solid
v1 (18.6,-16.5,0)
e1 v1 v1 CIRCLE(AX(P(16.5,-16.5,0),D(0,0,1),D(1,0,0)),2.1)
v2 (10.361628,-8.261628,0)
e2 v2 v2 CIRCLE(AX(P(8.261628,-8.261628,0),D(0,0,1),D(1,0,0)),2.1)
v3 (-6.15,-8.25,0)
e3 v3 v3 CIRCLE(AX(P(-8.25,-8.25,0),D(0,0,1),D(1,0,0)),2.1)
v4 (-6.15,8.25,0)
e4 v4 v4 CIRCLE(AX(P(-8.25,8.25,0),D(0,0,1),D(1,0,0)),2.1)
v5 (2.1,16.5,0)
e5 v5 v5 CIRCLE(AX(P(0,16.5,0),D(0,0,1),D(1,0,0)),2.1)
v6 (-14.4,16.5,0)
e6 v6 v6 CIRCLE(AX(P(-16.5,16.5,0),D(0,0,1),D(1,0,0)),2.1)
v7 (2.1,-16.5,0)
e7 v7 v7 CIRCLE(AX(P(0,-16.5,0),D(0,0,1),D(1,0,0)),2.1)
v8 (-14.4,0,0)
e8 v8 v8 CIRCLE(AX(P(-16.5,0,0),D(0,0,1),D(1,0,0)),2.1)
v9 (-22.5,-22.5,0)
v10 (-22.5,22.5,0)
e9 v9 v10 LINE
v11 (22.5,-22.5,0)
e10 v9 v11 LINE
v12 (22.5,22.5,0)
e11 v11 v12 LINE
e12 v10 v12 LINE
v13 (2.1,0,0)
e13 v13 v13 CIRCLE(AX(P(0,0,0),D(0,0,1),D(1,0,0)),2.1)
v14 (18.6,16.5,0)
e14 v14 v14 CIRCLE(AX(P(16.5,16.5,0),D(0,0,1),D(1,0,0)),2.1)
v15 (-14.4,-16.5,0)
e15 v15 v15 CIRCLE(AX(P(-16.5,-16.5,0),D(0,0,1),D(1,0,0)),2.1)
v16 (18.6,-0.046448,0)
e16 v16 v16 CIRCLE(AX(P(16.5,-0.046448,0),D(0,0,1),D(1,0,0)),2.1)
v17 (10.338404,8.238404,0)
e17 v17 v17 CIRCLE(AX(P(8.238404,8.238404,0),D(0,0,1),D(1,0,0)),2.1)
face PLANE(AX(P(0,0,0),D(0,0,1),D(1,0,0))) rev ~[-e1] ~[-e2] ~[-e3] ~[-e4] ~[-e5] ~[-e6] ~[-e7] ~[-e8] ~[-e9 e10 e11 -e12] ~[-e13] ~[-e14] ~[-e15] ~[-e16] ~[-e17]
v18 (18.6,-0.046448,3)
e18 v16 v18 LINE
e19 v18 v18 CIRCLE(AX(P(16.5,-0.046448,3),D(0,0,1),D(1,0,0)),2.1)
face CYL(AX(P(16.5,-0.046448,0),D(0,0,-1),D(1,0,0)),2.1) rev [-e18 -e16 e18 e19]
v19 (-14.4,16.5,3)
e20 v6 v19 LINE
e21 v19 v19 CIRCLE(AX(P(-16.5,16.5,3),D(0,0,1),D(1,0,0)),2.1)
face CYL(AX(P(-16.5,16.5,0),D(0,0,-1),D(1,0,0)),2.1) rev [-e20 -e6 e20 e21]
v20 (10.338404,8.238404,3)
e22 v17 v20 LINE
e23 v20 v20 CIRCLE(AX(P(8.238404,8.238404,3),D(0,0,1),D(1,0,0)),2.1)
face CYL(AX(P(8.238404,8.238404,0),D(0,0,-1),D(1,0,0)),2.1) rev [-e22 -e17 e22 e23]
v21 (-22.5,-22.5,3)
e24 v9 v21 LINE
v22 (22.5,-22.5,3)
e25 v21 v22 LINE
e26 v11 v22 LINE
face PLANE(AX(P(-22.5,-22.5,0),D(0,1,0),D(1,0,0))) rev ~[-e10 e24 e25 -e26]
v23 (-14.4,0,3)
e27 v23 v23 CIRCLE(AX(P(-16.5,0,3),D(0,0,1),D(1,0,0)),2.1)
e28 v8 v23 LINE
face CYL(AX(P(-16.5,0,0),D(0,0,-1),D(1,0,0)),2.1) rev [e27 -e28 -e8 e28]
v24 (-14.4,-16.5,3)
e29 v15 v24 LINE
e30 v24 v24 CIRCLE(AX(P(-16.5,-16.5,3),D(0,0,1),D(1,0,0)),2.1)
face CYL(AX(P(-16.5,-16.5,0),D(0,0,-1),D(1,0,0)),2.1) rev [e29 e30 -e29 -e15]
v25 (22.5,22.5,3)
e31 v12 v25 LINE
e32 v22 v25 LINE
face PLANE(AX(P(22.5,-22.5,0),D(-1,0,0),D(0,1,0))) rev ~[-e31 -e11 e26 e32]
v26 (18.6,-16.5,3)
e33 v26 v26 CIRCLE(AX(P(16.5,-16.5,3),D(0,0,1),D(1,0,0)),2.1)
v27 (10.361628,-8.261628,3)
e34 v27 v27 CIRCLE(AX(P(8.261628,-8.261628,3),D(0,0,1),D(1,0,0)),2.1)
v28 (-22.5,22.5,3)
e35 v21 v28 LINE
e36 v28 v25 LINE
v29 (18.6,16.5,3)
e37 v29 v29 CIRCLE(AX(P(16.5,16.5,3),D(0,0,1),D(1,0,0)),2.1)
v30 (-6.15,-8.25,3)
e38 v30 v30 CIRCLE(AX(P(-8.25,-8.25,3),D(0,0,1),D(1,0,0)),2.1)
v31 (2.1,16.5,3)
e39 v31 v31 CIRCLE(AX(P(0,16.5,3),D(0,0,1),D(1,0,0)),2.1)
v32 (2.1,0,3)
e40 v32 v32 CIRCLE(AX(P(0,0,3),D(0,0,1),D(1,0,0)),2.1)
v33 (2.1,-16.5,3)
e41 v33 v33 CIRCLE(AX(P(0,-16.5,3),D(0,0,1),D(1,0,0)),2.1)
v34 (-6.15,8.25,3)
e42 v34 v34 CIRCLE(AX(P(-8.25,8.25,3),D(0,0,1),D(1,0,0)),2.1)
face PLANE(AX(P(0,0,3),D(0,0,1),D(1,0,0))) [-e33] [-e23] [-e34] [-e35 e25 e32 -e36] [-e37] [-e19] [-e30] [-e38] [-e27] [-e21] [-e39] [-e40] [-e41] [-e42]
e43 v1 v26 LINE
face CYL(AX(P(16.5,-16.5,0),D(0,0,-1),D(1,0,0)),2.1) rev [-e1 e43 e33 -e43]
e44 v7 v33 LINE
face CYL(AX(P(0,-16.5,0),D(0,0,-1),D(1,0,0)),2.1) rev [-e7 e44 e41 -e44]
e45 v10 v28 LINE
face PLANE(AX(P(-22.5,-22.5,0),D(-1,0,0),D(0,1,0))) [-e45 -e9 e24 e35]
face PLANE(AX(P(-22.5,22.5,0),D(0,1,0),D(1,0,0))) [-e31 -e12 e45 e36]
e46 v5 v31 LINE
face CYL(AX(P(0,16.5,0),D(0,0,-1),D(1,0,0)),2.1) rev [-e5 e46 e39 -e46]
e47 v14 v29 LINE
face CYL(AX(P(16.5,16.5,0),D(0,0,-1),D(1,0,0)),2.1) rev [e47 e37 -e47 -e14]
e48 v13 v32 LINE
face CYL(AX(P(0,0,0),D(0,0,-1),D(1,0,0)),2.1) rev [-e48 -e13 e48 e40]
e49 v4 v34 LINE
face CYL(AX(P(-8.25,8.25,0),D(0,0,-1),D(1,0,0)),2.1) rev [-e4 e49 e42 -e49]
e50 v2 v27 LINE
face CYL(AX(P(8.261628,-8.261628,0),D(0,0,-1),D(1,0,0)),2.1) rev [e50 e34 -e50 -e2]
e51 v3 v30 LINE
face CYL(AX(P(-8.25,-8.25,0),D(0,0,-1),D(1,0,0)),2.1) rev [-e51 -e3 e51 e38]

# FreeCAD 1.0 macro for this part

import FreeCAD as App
import Part
import Sketcher
from FreeCAD import Vector
Q = App.Units.Quantity

doc = App.newDocument("Part")
params = doc.addObject("Spreadsheet::Sheet", "Params")
for row, (alias, value) in enumerate([
    ("sketch1_diameter", "4.2 mm"),
    ("sketch1_width", "45 mm"),
    ("pad1_length", "3 mm"),
], start=1):
    params.set(f"A{row}", alias)
    params.set(f"B{row}", "=" + value)
    params.setAlias(f"B{row}", alias)

body = doc.addObject("PartDesign::Body", "Body")

# Sketch on XY plane
sketch1 = body.newObject("Sketcher::SketchObject", "Sketch")
sketch1.AttachmentSupport = (doc.getObject("XY_Plane"), [""])
sketch1.MapMode = "FlatFace"
sketch1.addGeometry([
    Part.LineSegment(Vector(-22.5, 22.5, 0), Vector(-22.5, -22.5, 0)),  # 0
    Part.LineSegment(Vector(-22.5, -22.5, 0), Vector(22.5, -22.5, 0)),  # 1
    Part.LineSegment(Vector(22.5, -22.5, 0), Vector(22.5, 22.5, 0)),  # 2
    Part.LineSegment(Vector(22.5, 22.5, 0), Vector(-22.5, 22.5, 0)),  # 3
    Part.Circle(Vector(-16.5, -16.5, 0), Vector(0, 0, 1), 2.1),  # 4
    Part.Circle(Vector(-8.2, -8.2, 0), Vector(0, 0, 1), 2.1),  # 5
    Part.Circle(Vector(0, -16.5, 0), Vector(0, 0, 1), 2.1),  # 6
    Part.Circle(Vector(16.5, -16.5, 0), Vector(0, 0, 1), 2.1),  # 7
    Part.Circle(Vector(8.3, -8.3, 0), Vector(0, 0, 1), 2.1),  # 8
    Part.Circle(Vector(16.5, 0, 0), Vector(0, 0, 1), 2.1),  # 9
    Part.Circle(Vector(-16.5, 0, 0), Vector(0, 0, 1), 2.1),  # 10
    Part.Circle(Vector(-8.2, 8.2, 0), Vector(0, 0, 1), 2.1),  # 11
    Part.Circle(Vector(-16.5, 16.5, 0), Vector(0, 0, 1), 2.1),  # 12
    Part.Circle(Vector(0, 0, 0), Vector(0, 0, 1), 2.1),  # 13
    Part.Circle(Vector(8.2, 8.2, 0), Vector(0, 0, 1), 2.1),  # 14
    Part.Circle(Vector(0, 16.5, 0), Vector(0, 0, 1), 2.1),  # 15
    Part.Circle(Vector(16.5, 16.5, 0), Vector(0, 0, 1), 2.1),  # 16
], False)
sketch1.addConstraint([
    Sketcher.Constraint("Coincident", 0, 2, 1, 1),
    Sketcher.Constraint("Coincident", 1, 2, 2, 1),
    Sketcher.Constraint("Coincident", 2, 2, 3, 1),
    Sketcher.Constraint("Coincident", 3, 2, 0, 1),
    Sketcher.Constraint("Vertical", 0),
    Sketcher.Constraint("Horizontal", 1),
    Sketcher.Constraint("Vertical", 2),
    Sketcher.Constraint("Horizontal", 3),
    Sketcher.Constraint("Coincident", 13, 3, -1, 1),
    Sketcher.Constraint("Equal", 4, 5),
    Sketcher.Constraint("Equal", 5, 6),
    Sketcher.Constraint("Equal", 6, 7),
    Sketcher.Constraint("Equal", 7, 8),
    Sketcher.Constraint("Equal", 8, 9),
    Sketcher.Constraint("Equal", 9, 10),
    Sketcher.Constraint("Equal", 10, 11),
    Sketcher.Constraint("Equal", 11, 12),
    Sketcher.Constraint("Equal", 12, 13),
    Sketcher.Constraint("Equal", 13, 14),
    Sketcher.Constraint("Equal", 14, 15),
    Sketcher.Constraint("Equal", 15, 16),
    Sketcher.Constraint("Symmetric", 7, 3, 12, 3, -1, 1),
    Sketcher.Constraint("Symmetric", 6, 3, 15, 3, -1, 1),
    Sketcher.Constraint("Symmetric", 4, 3, 16, 3, -1, 1),
    Sketcher.Constraint("Symmetric", 0, 2, 2, 2, -1, 1),
    Sketcher.Constraint("Symmetric", 4, 3, 7, 3, -2),
    Sketcher.Constraint("Symmetric", 5, 3, 11, 3, -1),
    Sketcher.Constraint("PointOnObject", 6, 3, -2),
    Sketcher.Constraint("PointOnObject", 10, 3, -1),
    Sketcher.Constraint("Horizontal", 4, 3, 6, 3),
    Sketcher.Constraint("Vertical", 7, 3, 9, 3),
    Sketcher.Constraint("Vertical", 4, 3, 10, 3),
    Sketcher.Constraint("Equal", 3, 0),
    Sketcher.Constraint("Diameter", 4, Q("4.2 mm")),
    Sketcher.Constraint("DistanceX", 1, 1, 1, 2, Q("45 mm")),
    Sketcher.Constraint("DistanceX", 4, 3, 7, 3, Q("33 mm")),
    Sketcher.Constraint("DistanceY", 4, 3, 12, 3, Q("33 mm")),
    Sketcher.Constraint("DistanceY", 5, 3, 11, 3, Q("16.5 mm")),
    Sketcher.Constraint("DistanceX", 5, 3, -1, 1, Q("8.25 mm")),
    Sketcher.Constraint("DistanceY", 9, 3, -1, 1, Q("0.046448 mm")),
    Sketcher.Constraint("DistanceX", 5, 3, 8, 3, Q("16.511628 mm")),
    Sketcher.Constraint("DistanceY", 8, 3, 9, 3, Q("8.21518 mm")),
    Sketcher.Constraint("DistanceY", 9, 3, 14, 3, Q("8.284852 mm")),
    Sketcher.Constraint("DistanceX", -1, 1, 14, 3, Q("8.238404 mm")),
])
sketch1.setExpression("Constraints[33]", "Params.sketch1_diameter")
sketch1.setExpression("Constraints[34]", "Params.sketch1_width")
pad1 = body.newObject("PartDesign::Pad", "Pad")
pad1.Profile = sketch1
pad1.setExpression("Length", "Params.pad1_length")

doc.recompute()
